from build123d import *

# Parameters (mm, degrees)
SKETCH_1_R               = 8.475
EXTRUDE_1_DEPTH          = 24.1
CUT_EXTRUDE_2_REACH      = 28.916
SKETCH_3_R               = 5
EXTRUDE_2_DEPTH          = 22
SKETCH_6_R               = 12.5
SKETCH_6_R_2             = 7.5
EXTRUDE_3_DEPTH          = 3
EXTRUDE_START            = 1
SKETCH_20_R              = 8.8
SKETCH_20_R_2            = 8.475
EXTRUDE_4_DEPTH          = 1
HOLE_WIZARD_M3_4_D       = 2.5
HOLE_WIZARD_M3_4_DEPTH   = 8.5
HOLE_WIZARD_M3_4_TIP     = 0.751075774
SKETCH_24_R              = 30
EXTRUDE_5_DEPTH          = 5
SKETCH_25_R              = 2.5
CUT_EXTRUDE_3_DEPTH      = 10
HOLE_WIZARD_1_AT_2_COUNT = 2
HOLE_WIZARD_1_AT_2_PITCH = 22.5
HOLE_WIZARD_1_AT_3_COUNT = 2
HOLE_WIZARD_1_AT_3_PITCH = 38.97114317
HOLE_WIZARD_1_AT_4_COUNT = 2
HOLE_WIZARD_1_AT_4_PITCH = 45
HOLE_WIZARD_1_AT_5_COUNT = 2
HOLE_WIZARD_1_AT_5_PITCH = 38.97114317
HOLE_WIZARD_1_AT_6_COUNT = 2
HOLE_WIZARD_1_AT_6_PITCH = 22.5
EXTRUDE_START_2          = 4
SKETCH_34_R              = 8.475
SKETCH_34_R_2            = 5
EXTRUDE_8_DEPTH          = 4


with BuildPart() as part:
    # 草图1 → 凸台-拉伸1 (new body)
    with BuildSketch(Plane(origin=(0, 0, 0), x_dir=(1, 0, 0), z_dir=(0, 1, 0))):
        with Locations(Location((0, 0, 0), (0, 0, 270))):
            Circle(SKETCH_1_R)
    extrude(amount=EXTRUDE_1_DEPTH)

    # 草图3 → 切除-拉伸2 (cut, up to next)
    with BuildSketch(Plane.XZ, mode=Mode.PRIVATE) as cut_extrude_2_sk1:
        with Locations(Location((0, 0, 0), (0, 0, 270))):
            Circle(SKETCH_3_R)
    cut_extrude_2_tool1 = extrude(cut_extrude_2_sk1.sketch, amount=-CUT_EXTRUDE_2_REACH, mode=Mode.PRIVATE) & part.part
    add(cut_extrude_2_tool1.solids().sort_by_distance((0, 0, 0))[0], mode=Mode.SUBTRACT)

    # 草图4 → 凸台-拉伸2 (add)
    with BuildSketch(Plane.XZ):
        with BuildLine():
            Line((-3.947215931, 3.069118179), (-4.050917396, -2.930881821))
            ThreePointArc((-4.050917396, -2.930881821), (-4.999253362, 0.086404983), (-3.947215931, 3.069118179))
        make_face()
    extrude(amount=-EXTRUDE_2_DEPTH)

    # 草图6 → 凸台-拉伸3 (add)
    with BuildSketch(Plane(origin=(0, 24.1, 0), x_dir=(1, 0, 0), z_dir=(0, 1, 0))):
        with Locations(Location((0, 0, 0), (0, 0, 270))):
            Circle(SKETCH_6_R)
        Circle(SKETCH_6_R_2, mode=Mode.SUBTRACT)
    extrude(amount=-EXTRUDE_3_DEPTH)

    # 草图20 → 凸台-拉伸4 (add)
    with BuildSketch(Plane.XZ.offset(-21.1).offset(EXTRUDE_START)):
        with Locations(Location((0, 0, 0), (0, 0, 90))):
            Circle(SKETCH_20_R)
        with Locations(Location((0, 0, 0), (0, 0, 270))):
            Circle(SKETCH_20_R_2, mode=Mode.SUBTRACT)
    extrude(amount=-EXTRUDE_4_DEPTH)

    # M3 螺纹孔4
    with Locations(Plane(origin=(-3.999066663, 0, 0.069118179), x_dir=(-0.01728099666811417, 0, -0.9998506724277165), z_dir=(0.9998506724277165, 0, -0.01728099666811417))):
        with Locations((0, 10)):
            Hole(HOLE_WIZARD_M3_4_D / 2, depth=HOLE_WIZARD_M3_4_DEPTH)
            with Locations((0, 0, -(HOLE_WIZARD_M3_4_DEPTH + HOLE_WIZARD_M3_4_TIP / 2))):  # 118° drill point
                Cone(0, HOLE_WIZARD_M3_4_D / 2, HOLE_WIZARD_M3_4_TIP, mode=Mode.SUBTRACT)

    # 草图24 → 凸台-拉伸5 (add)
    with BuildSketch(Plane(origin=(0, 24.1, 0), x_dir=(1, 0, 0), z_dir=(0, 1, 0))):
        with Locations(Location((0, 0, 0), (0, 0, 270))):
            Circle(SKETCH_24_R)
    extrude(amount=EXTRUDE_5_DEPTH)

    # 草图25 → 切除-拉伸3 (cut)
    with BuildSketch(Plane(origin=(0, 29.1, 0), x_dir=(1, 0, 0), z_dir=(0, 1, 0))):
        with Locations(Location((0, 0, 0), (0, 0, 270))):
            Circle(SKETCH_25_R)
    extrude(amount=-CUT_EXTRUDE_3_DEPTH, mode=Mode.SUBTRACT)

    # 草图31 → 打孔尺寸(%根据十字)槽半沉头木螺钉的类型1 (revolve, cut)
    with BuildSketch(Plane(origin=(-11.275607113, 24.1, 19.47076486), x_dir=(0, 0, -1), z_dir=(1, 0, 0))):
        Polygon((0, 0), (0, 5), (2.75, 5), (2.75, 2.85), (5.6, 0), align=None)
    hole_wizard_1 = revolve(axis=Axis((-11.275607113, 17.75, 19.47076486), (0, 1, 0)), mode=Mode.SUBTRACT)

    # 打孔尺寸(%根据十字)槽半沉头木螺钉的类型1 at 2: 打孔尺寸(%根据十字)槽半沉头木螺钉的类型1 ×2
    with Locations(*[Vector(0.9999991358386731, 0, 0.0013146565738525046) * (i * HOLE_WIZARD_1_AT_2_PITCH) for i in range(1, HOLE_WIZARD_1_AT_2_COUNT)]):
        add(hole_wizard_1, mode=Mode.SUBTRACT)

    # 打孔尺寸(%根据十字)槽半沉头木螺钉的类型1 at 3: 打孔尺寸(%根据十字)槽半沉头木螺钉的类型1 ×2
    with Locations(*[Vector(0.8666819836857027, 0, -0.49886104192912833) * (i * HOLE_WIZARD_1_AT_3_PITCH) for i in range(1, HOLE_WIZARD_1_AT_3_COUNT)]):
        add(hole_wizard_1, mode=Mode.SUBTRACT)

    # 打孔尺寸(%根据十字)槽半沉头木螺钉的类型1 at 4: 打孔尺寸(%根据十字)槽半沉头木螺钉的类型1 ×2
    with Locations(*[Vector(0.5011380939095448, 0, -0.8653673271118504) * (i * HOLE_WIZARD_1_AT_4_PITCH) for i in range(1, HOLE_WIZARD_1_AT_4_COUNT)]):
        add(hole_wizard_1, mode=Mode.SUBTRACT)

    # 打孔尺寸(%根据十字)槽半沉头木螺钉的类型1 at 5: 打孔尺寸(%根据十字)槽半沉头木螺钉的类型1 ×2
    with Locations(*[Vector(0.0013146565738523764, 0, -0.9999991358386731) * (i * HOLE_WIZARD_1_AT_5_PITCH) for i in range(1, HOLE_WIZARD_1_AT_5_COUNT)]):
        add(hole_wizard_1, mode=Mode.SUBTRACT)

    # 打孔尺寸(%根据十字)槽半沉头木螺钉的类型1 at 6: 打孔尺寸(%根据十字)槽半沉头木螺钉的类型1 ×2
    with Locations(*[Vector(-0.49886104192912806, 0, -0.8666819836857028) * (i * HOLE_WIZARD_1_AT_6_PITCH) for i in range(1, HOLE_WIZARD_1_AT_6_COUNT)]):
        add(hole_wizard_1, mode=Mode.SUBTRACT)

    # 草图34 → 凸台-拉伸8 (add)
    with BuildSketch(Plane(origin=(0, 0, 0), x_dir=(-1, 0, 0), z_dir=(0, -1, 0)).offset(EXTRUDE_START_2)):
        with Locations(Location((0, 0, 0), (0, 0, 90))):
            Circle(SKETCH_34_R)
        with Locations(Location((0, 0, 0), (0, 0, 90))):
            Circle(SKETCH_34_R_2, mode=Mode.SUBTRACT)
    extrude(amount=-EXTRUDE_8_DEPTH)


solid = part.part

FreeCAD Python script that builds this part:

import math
import FreeCAD as App
import Part
import Sketcher
Q = App.Units.Quantity


def add_polygon(sketch, points):
    """Adds a closed chain of lines whose ends are joined by coincident constraints."""
    first, n = sketch.GeometryCount, len(points)
    for a, b in zip(points, points[1:] + points[:1]):
        sketch.addGeometry(Part.LineSegment(App.Vector(*a, 0), App.Vector(*b, 0)), False)
    for i in range(n):
        sketch.addConstraint(Sketcher.Constraint("Coincident", first + i, 2, first + (i + 1) % n, 1))

doc = App.newDocument("Part")
body = doc.addObject("PartDesign::Body", "Body")

sketch1 = body.newObject("Sketcher::SketchObject", "Sketch")
sketch1.AttachmentSupport = (doc.getObject("XZ_Plane"), [""])
sketch1.MapMode = "FlatFace"
sketch1.addGeometry(Part.Circle(App.Vector(0, 0, 0), App.Vector(0, 0, 1), 8), False)
sketch1.addConstraint([
    Sketcher.Constraint("Coincident", 0, 3, -1, 1),
    Sketcher.Constraint("Diameter", 0, Q("16.95 mm")),
])
pad1 = body.newObject("PartDesign::Pad", "Pad")
pad1.Profile = sketch1
pad1.Length = 24.1
pad1.Reversed = True

sketch2 = body.newObject("Sketcher::SketchObject", "Sketch001")
sketch2.AttachmentSupport = (doc.getObject("XZ_Plane"), [""])
sketch2.MapMode = "FlatFace"
sketch2.addGeometry(Part.Circle(App.Vector(0, 0, 0), App.Vector(0, 0, 1), 5), False)
sketch2.addConstraint([
    Sketcher.Constraint("Coincident", 0, 3, -1, 1),
    Sketcher.Constraint("Diameter", 0, Q("10 mm")),
])
pocket1 = body.newObject("PartDesign::Pocket", "Pocket")
pocket1.Profile = sketch2
pocket1.Type = "UpToFirst"

sketch3 = body.newObject("Sketcher::SketchObject", "Sketch002")
sketch3.AttachmentSupport = (doc.getObject("XZ_Plane"), [""])
sketch3.MapMode = "FlatFace"
sketch3.addGeometry([
    Part.LineSegment(App.Vector(-4, -3, 0), App.Vector(-4, 3, 0)),
    Part.ArcOfCircle(Part.Circle(App.Vector(0, 0, 0), App.Vector(0, 0, 1), 5), math.radians(142), math.radians(216)),
], False)
sketch3.addConstraint([
    Sketcher.Constraint("Coincident", 0, 1, 1, 2),
    Sketcher.Constraint("Coincident", 1, 1, 0, 2),
    Sketcher.Constraint("Coincident", 1, 3, -1, 1),
    Sketcher.Constraint("Radius", 1, Q("5 mm")),
    Sketcher.Constraint("DistanceY", 0, 1, 1, 1, Q("6 mm")),
    Sketcher.Constraint("DistanceX", 0, 1, 1, 1, Q("0.103701 mm")),
])
pad2 = body.newObject("PartDesign::Pad", "Pad001")
pad2.Profile = sketch3
pad2.Length = 22
pad2.Reversed = True

sketch4 = body.newObject("Sketcher::SketchObject", "Sketch003")
sketch4.AttachmentSupport = (doc.getObject("XZ_Plane"), [""])
sketch4.MapMode = "FlatFace"
sketch4.AttachmentOffset = App.Placement(App.Vector(0, 0, -24.1), App.Rotation())
sketch4.addGeometry([
    Part.Circle(App.Vector(0, 0, 0), App.Vector(0, 0, 1), 12),
    Part.Circle(App.Vector(0, 0, 0), App.Vector(0, 0, 1), 8),
], False)
sketch4.addConstraint([
    Sketcher.Constraint("Coincident", 0, 3, -1, 1),
    Sketcher.Constraint("Coincident", 1, 3, -1, 1),
    Sketcher.Constraint("Diameter", 0, Q("25 mm")),
    Sketcher.Constraint("Diameter", 1, Q("15 mm")),
])
pad3 = body.newObject("PartDesign::Pad", "Pad002")
pad3.Profile = sketch4
pad3.Length = 3

sketch5 = body.newObject("Sketcher::SketchObject", "Sketch004")
sketch5.AttachmentSupport = (doc.getObject("XZ_Plane"), [""])
sketch5.MapMode = "FlatFace"
sketch5.AttachmentOffset = App.Placement(App.Vector(0, 0, -20.1), App.Rotation())
sketch5.addGeometry([
    Part.Circle(App.Vector(0, 0, 0), App.Vector(0, 0, 1), 9),
    Part.Circle(App.Vector(0, 0, 0), App.Vector(0, 0, 1), 8),
], False)
sketch5.addConstraint([
    Sketcher.Constraint("Coincident", 0, 3, -1, 1),
    Sketcher.Constraint("Coincident", 1, 3, -1, 1),
    Sketcher.Constraint("Diameter", 0, Q("17.6 mm")),
    Sketcher.Constraint("Diameter", 1, Q("16.95 mm")),
])
pad4 = body.newObject("PartDesign::Pad", "Pad003")
pad4.Profile = sketch5
pad4.Length = 1
pad4.Reversed = True

sketch6 = body.newObject("Sketcher::SketchObject", "Sketch005")
sketch6.Placement = App.Placement(App.Vector(-3.999067, 0, 0.069118), App.Rotation(App.Vector(-0.017280997, 0, -0.999850672), App.Vector(0, 0.999999999, 0), App.Vector(0.999850672, 0, -0.017280997), "ZXY"))
sketch6.addGeometry(Part.Circle(App.Vector(0, 10, 0), App.Vector(0, 0, 1), 1.2), False)
sketch6.addConstraint([
    Sketcher.Constraint("PointOnObject", 0, 3, -2),
    Sketcher.Constraint("Diameter", 0, Q("2.5 mm")),
    Sketcher.Constraint("DistanceY", -1, 1, 0, 3, Q("10 mm")),
])
doc.recompute()
hole = body.newObject("PartDesign::Hole", "Hole")
hole.Profile = sketch6
hole.ThreadType = "None"
hole.Diameter = 2.5
hole.DepthType = "Dimension"
hole.Depth = 8.5
hole.DrillPoint = "Angled"
hole.DrillPointAngle = 118

sketch7 = body.newObject("Sketcher::SketchObject", "Sketch006")
sketch7.AttachmentSupport = (doc.getObject("XZ_Plane"), [""])
sketch7.MapMode = "FlatFace"
sketch7.AttachmentOffset = App.Placement(App.Vector(0, 0, -24.1), App.Rotation())
sketch7.addGeometry(Part.Circle(App.Vector(0, 0, 0), App.Vector(0, 0, 1), 30), False)
sketch7.addConstraint([
    Sketcher.Constraint("Coincident", 0, 3, -1, 1),
    Sketcher.Constraint("Diameter", 0, Q("60 mm")),
])
pad5 = body.newObject("PartDesign::Pad", "Pad004")
pad5.Profile = sketch7
pad5.Length = 5
pad5.Reversed = True

sketch8 = body.newObject("Sketcher::SketchObject", "Sketch007")
sketch8.AttachmentSupport = (doc.getObject("XZ_Plane"), [""])
sketch8.MapMode = "FlatFace"
sketch8.AttachmentOffset = App.Placement(App.Vector(0, 0, -29.1), App.Rotation())
sketch8.addGeometry(Part.Circle(App.Vector(0, 0, 0), App.Vector(0, 0, 1), 2.5), False)
sketch8.addConstraint([
    Sketcher.Constraint("Coincident", 0, 3, -1, 1),
    Sketcher.Constraint("Diameter", 0, Q("5 mm")),
])
pocket2 = body.newObject("PartDesign::Pocket", "Pocket001")
pocket2.Profile = sketch8
pocket2.Length = 10
pocket2.Reversed = True

sketch9 = body.newObject("Sketcher::SketchObject", "Sketch008")
sketch9.AttachmentSupport = (doc.getObject("YZ_Plane"), [""])
sketch9.MapMode = "FlatFace"
sketch9.AttachmentOffset = App.Placement(App.Vector(0, 0, -11.275607), App.Rotation())
add_polygon(sketch9, [(29.1, 19.5), (24.1, 19.5), (24.1, 13.9), (26.9, 16.7), (29.1, 16.7)])
sketch9.addGeometry(Part.LineSegment(App.Vector(24.1, 19.5, 0), App.Vector(29.1, 19.5, 0)), True)
sketch9.addConstraint([
    Sketcher.Constraint("Horizontal", 0),
    Sketcher.Constraint("Vertical", 1),
    Sketcher.Constraint("Horizontal", 3),
    Sketcher.Constraint("Vertical", 4),
    Sketcher.Constraint("Horizontal", 5),
    Sketcher.Constraint("Coincident", 5, 1, 0, 2),
    Sketcher.Constraint("Vertical", 3, 2, 5, 2),
    Sketcher.Constraint("DistanceX", 0, 2, 0, 1, Q("5 mm")),
    Sketcher.Constraint("Angle", 2, Q("45 deg")),
    Sketcher.Constraint("DistanceY", 1, 2, 1, 1, Q("5.6 mm")),
    Sketcher.Constraint("DistanceX", 3, 1, 3, 2, Q("2.15 mm")),
    Sketcher.Constraint("DistanceX", -1, 1, 0, 2, Q("24.1 mm")),
    Sketcher.Constraint("DistanceY", -1, 1, 0, 2, Q("19.470765 mm")),
])
groove = body.newObject("PartDesign::Groove", "Groove")
groove.Profile = sketch9
groove.ReferenceAxis = (sketch9, ["Axis0"])
groove.Angle = 360
doc.recompute()

datumline = body.newObject("PartDesign::Line", "DatumLine")
datumline.Placement = App.Placement(App.Vector(0, 0, 0), App.Rotation(App.Vector(0, 0, 1), App.Vector(0.999999136, 0, 0.001314657)))
linearpattern = body.newObject("PartDesign::LinearPattern", "LinearPattern")
linearpattern.Originals = [groove]
linearpattern.Direction = (datumline, [""])
linearpattern.Mode = "offset"
linearpattern.Offset = 22.5
linearpattern.Occurrences = 2
body.Tip = linearpattern
doc.recompute()

datumline2 = body.newObject("PartDesign::Line", "DatumLine001")
datumline2.Placement = App.Placement(App.Vector(0, 0, 0), App.Rotation(App.Vector(0, 0, 1), App.Vector(0.866681984, 0, -0.498861042)))
linearpattern2 = body.newObject("PartDesign::LinearPattern", "LinearPattern001")
linearpattern2.Originals = [groove]
linearpattern2.Direction = (datumline2, [""])
linearpattern2.Mode = "offset"
linearpattern2.Offset = 38.971143
linearpattern2.Occurrences = 2
body.Tip = linearpattern2
doc.recompute()

datumline3 = body.newObject("PartDesign::Line", "DatumLine002")
datumline3.Placement = App.Placement(App.Vector(0, 0, 0), App.Rotation(App.Vector(0, 0, 1), App.Vector(0.501138094, 0, -0.865367327)))
linearpattern3 = body.newObject("PartDesign::LinearPattern", "LinearPattern002")
linearpattern3.Originals = [groove]
linearpattern3.Direction = (datumline3, [""])
linearpattern3.Mode = "offset"
linearpattern3.Offset = 45
linearpattern3.Occurrences = 2
body.Tip = linearpattern3
doc.recompute()

datumline4 = body.newObject("PartDesign::Line", "DatumLine003")
datumline4.Placement = App.Placement(App.Vector(0, 0, 0), App.Rotation(App.Vector(0, 0, 1), App.Vector(0.001314657, 0, -0.999999136)))
linearpattern4 = body.newObject("PartDesign::LinearPattern", "LinearPattern003")
linearpattern4.Originals = [groove]
linearpattern4.Direction = (datumline4, [""])
linearpattern4.Mode = "offset"
linearpattern4.Offset = 38.971143
linearpattern4.Occurrences = 2
body.Tip = linearpattern4
doc.recompute()

datumline5 = body.newObject("PartDesign::Line", "DatumLine004")
datumline5.Placement = App.Placement(App.Vector(0, 0, 0), App.Rotation(App.Vector(0, 0, 1), App.Vector(-0.498861042, 0, -0.866681984)))
linearpattern5 = body.newObject("PartDesign::LinearPattern", "LinearPattern004")
linearpattern5.Originals = [groove]
linearpattern5.Direction = (datumline5, [""])
linearpattern5.Mode = "offset"
linearpattern5.Offset = 22.5
linearpattern5.Occurrences = 2
body.Tip = linearpattern5

sketch10 = body.newObject("Sketcher::SketchObject", "Sketch009")
sketch10.AttachmentSupport = (doc.getObject("XZ_Plane"), [""])
sketch10.MapMode = "FlatFace"
sketch10.AttachmentOffset = App.Placement(App.Vector(0, 0, 4), App.Rotation())
sketch10.addGeometry([
    Part.Circle(App.Vector(0, 0, 0), App.Vector(0, 0, 1), 8),
    Part.Circle(App.Vector(0, 0, 0), App.Vector(0, 0, 1), 5),
], False)
sketch10.addConstraint([
    Sketcher.Constraint("Coincident", 0, 3, -1, 1),
    Sketcher.Constraint("Coincident", 1, 3, -1, 1),
    Sketcher.Constraint("Diameter", 1, Q("10 mm")),
    Sketcher.Constraint("Diameter", 0, Q("16.95 mm")),
])
pad6 = body.newObject("PartDesign::Pad", "Pad005")
pad6.Profile = sketch10
pad6.Length = 4
pad6.Reversed = True

doc.recompute()
